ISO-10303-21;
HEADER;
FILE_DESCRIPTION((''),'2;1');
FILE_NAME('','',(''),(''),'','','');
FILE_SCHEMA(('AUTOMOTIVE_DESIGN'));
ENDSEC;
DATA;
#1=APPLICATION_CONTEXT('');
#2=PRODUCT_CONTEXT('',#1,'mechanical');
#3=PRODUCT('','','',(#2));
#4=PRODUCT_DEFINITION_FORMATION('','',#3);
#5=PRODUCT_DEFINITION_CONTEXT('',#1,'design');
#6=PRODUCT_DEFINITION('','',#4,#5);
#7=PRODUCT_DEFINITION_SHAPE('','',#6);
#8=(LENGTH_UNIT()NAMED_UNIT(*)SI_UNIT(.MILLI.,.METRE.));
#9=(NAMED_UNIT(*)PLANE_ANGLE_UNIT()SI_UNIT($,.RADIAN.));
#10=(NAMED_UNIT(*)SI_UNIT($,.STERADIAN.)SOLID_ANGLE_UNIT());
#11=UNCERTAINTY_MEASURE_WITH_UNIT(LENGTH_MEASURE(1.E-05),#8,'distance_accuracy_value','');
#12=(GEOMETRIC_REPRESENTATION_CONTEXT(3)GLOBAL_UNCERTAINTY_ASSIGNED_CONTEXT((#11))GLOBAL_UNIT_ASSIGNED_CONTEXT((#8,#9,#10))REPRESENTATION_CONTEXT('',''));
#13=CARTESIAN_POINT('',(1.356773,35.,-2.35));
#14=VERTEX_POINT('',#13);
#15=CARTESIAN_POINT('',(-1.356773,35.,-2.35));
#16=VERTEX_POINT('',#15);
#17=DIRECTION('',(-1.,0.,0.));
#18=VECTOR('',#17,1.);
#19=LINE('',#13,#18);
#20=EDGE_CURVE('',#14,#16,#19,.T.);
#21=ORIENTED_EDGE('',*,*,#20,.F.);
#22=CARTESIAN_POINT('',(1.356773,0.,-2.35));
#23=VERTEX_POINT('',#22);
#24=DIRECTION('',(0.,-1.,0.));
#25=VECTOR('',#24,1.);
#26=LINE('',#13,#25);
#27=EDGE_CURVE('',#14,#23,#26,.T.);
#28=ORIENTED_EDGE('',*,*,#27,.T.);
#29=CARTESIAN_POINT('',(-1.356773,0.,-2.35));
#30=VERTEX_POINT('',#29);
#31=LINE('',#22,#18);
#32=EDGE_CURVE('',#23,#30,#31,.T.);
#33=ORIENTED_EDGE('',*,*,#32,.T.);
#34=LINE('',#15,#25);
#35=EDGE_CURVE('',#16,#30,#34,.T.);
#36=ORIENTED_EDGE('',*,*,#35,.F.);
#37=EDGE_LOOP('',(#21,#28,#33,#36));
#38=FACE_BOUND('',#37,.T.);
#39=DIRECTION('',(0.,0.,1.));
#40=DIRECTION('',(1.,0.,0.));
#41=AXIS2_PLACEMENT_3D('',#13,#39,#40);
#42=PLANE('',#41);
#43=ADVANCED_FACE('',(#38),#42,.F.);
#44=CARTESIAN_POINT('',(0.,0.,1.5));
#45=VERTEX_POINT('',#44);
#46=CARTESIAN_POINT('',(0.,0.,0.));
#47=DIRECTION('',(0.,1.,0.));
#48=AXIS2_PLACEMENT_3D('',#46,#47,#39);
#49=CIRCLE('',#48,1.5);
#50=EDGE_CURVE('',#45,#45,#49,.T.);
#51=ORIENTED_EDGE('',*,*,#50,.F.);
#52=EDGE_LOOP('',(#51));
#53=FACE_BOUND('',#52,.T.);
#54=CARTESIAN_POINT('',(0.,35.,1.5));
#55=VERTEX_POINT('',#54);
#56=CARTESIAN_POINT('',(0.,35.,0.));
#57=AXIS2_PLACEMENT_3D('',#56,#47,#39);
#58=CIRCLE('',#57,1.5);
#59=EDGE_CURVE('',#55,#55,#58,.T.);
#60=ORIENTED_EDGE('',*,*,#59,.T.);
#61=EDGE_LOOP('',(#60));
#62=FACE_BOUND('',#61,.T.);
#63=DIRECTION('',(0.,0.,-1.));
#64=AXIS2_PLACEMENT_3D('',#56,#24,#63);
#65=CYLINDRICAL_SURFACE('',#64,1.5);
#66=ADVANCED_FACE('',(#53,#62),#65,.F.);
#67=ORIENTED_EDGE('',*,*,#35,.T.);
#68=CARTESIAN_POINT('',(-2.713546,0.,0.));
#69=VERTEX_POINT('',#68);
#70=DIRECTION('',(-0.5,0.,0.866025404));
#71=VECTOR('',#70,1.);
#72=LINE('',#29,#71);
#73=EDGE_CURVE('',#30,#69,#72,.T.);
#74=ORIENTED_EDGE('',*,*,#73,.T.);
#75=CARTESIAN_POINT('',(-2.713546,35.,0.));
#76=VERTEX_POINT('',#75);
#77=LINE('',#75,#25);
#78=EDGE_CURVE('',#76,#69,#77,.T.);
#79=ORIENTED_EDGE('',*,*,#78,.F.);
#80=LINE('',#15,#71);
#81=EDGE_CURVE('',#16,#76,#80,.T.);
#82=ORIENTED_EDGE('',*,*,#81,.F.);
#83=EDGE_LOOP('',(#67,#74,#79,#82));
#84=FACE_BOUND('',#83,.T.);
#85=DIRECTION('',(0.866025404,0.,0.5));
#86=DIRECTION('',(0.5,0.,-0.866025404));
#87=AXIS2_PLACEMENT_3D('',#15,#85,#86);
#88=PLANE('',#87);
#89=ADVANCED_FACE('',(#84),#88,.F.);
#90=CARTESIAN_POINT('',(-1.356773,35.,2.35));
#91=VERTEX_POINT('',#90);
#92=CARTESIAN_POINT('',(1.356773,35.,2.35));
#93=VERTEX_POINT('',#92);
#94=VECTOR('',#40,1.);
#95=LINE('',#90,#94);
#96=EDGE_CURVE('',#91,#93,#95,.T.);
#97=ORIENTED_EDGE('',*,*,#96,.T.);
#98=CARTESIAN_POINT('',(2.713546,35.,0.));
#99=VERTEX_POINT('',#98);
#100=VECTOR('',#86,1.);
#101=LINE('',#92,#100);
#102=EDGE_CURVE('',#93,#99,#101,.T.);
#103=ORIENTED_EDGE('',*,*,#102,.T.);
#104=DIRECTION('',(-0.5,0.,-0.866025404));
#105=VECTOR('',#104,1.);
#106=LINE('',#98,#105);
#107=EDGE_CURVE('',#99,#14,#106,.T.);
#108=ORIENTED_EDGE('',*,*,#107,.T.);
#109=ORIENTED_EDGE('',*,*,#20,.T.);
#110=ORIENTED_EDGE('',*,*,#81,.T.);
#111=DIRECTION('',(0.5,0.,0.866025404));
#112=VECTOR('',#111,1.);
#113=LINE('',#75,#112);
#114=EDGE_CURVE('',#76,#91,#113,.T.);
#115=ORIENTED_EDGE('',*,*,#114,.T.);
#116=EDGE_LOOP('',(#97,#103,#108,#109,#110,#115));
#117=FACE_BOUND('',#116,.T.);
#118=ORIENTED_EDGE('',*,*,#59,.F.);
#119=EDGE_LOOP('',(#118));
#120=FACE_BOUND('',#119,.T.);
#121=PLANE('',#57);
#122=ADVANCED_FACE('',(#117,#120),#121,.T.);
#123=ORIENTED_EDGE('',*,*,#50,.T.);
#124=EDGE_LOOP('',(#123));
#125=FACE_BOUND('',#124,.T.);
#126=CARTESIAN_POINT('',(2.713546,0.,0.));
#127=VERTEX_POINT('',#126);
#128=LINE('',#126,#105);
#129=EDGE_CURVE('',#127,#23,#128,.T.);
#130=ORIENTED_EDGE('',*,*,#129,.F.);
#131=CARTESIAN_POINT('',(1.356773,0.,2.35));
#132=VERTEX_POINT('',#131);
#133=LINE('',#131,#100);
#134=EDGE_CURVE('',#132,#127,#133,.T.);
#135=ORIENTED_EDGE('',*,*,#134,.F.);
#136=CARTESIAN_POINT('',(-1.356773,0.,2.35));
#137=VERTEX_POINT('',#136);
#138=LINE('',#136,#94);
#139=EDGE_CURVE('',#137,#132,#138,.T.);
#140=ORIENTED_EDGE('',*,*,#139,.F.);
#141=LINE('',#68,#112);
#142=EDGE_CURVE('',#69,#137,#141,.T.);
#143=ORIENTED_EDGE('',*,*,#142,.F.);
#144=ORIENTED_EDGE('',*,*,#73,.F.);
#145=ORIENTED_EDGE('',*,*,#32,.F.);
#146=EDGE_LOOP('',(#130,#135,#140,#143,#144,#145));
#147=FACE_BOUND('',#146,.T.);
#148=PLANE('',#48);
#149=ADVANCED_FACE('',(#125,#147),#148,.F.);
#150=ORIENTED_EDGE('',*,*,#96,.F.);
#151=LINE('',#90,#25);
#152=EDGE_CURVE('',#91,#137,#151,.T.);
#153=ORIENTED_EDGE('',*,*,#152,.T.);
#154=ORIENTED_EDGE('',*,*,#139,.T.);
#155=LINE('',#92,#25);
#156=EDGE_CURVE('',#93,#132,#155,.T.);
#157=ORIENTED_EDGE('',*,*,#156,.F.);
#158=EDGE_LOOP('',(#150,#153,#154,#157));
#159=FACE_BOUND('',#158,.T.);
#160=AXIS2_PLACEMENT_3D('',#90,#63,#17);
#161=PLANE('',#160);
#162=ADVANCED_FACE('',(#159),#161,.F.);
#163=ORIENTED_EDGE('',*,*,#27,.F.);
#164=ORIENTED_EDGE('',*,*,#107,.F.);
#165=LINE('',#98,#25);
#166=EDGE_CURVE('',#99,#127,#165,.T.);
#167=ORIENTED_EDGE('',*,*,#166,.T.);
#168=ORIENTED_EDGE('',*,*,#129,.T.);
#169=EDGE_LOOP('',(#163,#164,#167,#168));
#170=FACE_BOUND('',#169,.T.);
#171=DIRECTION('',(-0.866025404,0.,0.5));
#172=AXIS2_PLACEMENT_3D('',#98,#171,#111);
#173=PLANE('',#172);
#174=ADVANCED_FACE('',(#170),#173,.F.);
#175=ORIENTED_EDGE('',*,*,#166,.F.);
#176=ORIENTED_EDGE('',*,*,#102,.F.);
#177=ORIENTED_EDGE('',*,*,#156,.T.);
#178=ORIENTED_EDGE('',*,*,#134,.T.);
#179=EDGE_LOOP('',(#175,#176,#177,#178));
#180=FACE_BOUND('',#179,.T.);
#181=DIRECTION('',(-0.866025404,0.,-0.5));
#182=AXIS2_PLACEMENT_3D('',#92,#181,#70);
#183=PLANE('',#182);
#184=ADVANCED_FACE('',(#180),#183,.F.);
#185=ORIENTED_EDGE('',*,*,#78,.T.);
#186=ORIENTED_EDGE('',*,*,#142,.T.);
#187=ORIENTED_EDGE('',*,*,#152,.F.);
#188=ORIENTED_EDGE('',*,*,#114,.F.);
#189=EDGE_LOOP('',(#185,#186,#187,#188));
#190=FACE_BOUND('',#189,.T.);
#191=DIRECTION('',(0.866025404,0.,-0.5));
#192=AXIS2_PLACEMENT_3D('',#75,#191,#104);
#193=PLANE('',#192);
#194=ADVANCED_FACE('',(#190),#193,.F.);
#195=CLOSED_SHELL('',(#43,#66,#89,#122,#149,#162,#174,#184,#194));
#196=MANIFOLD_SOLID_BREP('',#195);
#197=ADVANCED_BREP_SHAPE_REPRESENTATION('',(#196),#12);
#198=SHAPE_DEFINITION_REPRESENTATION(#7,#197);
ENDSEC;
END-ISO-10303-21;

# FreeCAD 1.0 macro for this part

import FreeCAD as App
import Part
import Sketcher

V = App.Vector
Q = App.Units.Quantity

doc = App.newDocument("Part")
body = doc.addObject("PartDesign::Body", "Body")

# Sketch on XZ plane
sketch1 = doc.addObject("Sketcher::SketchObject", "Sketch")
body.addObject(sketch1)
sketch1.AttachmentSupport = (doc.XZ_Plane, [""])
sketch1.MapMode = "FlatFace"
sketch1.addGeometry(Part.LineSegment(V(2.7, 0, 0), V(1.4, -2.4, 0)), False)
sketch1.addGeometry(Part.LineSegment(V(1.4, -2.4, 0), V(-1.4, -2.4, 0)), False)
sketch1.addGeometry(Part.LineSegment(V(-1.4, -2.4, 0), V(-2.7, 0, 0)), False)
sketch1.addGeometry(Part.LineSegment(V(-2.7, 0, 0), V(-1.4, 2.4, 0)), False)
sketch1.addGeometry(Part.LineSegment(V(-1.4, 2.4, 0), V(1.4, 2.4, 0)), False)
sketch1.addGeometry(Part.LineSegment(V(1.4, 2.4, 0), V(2.7, 0, 0)), False)
sketch1.addGeometry(Part.Circle(V(0, 0, 0), V(0, 0, 1), 1.5), False)
sketch1.addConstraint(Sketcher.Constraint("Coincident", 0, 2, 1, 1))
sketch1.addConstraint(Sketcher.Constraint("Coincident", 1, 2, 2, 1))
sketch1.addConstraint(Sketcher.Constraint("Coincident", 2, 2, 3, 1))
sketch1.addConstraint(Sketcher.Constraint("Coincident", 3, 2, 4, 1))
sketch1.addConstraint(Sketcher.Constraint("Coincident", 4, 2, 5, 1))
sketch1.addConstraint(Sketcher.Constraint("Coincident", 5, 2, 0, 1))
sketch1.addConstraint(Sketcher.Constraint("Horizontal", 1))
sketch1.addConstraint(Sketcher.Constraint("Horizontal", 4))
sketch1.addConstraint(Sketcher.Constraint("Coincident", 6, 3, -1, 1))
sketch1.addConstraint(Sketcher.Constraint("Symmetric", 0, 2, 3, 2, -1, 1))
sketch1.addConstraint(Sketcher.Constraint("Symmetric", 2, 2, 5, 2, -1, 1))
sketch1.addConstraint(Sketcher.Constraint("PointOnObject", 2, 2, -1))
sketch1.addConstraint(Sketcher.Constraint("Parallel", 2, 5))
sketch1.addConstraint(Sketcher.Constraint("Vertical", 1, 2, 3, 2))
sketch1.addConstraint(Sketcher.Constraint("Diameter", 6, 3.0))
sketch1.addConstraint(Sketcher.Constraint("Angle", 0, Q("-120 deg")))
sketch1.addConstraint(Sketcher.Constraint("DistanceY", 1, 2, 3, 2, 4.7))
sketch1.addConstraint(Sketcher.Constraint("DistanceX", 1, 2, 1, 1, 2.713546))
pad1 = doc.addObject("PartDesign::Pad", "Pad")
body.addObject(pad1)
pad1.Profile = sketch1
pad1.Length = 35
pad1.Reversed = True

doc.recompute()
